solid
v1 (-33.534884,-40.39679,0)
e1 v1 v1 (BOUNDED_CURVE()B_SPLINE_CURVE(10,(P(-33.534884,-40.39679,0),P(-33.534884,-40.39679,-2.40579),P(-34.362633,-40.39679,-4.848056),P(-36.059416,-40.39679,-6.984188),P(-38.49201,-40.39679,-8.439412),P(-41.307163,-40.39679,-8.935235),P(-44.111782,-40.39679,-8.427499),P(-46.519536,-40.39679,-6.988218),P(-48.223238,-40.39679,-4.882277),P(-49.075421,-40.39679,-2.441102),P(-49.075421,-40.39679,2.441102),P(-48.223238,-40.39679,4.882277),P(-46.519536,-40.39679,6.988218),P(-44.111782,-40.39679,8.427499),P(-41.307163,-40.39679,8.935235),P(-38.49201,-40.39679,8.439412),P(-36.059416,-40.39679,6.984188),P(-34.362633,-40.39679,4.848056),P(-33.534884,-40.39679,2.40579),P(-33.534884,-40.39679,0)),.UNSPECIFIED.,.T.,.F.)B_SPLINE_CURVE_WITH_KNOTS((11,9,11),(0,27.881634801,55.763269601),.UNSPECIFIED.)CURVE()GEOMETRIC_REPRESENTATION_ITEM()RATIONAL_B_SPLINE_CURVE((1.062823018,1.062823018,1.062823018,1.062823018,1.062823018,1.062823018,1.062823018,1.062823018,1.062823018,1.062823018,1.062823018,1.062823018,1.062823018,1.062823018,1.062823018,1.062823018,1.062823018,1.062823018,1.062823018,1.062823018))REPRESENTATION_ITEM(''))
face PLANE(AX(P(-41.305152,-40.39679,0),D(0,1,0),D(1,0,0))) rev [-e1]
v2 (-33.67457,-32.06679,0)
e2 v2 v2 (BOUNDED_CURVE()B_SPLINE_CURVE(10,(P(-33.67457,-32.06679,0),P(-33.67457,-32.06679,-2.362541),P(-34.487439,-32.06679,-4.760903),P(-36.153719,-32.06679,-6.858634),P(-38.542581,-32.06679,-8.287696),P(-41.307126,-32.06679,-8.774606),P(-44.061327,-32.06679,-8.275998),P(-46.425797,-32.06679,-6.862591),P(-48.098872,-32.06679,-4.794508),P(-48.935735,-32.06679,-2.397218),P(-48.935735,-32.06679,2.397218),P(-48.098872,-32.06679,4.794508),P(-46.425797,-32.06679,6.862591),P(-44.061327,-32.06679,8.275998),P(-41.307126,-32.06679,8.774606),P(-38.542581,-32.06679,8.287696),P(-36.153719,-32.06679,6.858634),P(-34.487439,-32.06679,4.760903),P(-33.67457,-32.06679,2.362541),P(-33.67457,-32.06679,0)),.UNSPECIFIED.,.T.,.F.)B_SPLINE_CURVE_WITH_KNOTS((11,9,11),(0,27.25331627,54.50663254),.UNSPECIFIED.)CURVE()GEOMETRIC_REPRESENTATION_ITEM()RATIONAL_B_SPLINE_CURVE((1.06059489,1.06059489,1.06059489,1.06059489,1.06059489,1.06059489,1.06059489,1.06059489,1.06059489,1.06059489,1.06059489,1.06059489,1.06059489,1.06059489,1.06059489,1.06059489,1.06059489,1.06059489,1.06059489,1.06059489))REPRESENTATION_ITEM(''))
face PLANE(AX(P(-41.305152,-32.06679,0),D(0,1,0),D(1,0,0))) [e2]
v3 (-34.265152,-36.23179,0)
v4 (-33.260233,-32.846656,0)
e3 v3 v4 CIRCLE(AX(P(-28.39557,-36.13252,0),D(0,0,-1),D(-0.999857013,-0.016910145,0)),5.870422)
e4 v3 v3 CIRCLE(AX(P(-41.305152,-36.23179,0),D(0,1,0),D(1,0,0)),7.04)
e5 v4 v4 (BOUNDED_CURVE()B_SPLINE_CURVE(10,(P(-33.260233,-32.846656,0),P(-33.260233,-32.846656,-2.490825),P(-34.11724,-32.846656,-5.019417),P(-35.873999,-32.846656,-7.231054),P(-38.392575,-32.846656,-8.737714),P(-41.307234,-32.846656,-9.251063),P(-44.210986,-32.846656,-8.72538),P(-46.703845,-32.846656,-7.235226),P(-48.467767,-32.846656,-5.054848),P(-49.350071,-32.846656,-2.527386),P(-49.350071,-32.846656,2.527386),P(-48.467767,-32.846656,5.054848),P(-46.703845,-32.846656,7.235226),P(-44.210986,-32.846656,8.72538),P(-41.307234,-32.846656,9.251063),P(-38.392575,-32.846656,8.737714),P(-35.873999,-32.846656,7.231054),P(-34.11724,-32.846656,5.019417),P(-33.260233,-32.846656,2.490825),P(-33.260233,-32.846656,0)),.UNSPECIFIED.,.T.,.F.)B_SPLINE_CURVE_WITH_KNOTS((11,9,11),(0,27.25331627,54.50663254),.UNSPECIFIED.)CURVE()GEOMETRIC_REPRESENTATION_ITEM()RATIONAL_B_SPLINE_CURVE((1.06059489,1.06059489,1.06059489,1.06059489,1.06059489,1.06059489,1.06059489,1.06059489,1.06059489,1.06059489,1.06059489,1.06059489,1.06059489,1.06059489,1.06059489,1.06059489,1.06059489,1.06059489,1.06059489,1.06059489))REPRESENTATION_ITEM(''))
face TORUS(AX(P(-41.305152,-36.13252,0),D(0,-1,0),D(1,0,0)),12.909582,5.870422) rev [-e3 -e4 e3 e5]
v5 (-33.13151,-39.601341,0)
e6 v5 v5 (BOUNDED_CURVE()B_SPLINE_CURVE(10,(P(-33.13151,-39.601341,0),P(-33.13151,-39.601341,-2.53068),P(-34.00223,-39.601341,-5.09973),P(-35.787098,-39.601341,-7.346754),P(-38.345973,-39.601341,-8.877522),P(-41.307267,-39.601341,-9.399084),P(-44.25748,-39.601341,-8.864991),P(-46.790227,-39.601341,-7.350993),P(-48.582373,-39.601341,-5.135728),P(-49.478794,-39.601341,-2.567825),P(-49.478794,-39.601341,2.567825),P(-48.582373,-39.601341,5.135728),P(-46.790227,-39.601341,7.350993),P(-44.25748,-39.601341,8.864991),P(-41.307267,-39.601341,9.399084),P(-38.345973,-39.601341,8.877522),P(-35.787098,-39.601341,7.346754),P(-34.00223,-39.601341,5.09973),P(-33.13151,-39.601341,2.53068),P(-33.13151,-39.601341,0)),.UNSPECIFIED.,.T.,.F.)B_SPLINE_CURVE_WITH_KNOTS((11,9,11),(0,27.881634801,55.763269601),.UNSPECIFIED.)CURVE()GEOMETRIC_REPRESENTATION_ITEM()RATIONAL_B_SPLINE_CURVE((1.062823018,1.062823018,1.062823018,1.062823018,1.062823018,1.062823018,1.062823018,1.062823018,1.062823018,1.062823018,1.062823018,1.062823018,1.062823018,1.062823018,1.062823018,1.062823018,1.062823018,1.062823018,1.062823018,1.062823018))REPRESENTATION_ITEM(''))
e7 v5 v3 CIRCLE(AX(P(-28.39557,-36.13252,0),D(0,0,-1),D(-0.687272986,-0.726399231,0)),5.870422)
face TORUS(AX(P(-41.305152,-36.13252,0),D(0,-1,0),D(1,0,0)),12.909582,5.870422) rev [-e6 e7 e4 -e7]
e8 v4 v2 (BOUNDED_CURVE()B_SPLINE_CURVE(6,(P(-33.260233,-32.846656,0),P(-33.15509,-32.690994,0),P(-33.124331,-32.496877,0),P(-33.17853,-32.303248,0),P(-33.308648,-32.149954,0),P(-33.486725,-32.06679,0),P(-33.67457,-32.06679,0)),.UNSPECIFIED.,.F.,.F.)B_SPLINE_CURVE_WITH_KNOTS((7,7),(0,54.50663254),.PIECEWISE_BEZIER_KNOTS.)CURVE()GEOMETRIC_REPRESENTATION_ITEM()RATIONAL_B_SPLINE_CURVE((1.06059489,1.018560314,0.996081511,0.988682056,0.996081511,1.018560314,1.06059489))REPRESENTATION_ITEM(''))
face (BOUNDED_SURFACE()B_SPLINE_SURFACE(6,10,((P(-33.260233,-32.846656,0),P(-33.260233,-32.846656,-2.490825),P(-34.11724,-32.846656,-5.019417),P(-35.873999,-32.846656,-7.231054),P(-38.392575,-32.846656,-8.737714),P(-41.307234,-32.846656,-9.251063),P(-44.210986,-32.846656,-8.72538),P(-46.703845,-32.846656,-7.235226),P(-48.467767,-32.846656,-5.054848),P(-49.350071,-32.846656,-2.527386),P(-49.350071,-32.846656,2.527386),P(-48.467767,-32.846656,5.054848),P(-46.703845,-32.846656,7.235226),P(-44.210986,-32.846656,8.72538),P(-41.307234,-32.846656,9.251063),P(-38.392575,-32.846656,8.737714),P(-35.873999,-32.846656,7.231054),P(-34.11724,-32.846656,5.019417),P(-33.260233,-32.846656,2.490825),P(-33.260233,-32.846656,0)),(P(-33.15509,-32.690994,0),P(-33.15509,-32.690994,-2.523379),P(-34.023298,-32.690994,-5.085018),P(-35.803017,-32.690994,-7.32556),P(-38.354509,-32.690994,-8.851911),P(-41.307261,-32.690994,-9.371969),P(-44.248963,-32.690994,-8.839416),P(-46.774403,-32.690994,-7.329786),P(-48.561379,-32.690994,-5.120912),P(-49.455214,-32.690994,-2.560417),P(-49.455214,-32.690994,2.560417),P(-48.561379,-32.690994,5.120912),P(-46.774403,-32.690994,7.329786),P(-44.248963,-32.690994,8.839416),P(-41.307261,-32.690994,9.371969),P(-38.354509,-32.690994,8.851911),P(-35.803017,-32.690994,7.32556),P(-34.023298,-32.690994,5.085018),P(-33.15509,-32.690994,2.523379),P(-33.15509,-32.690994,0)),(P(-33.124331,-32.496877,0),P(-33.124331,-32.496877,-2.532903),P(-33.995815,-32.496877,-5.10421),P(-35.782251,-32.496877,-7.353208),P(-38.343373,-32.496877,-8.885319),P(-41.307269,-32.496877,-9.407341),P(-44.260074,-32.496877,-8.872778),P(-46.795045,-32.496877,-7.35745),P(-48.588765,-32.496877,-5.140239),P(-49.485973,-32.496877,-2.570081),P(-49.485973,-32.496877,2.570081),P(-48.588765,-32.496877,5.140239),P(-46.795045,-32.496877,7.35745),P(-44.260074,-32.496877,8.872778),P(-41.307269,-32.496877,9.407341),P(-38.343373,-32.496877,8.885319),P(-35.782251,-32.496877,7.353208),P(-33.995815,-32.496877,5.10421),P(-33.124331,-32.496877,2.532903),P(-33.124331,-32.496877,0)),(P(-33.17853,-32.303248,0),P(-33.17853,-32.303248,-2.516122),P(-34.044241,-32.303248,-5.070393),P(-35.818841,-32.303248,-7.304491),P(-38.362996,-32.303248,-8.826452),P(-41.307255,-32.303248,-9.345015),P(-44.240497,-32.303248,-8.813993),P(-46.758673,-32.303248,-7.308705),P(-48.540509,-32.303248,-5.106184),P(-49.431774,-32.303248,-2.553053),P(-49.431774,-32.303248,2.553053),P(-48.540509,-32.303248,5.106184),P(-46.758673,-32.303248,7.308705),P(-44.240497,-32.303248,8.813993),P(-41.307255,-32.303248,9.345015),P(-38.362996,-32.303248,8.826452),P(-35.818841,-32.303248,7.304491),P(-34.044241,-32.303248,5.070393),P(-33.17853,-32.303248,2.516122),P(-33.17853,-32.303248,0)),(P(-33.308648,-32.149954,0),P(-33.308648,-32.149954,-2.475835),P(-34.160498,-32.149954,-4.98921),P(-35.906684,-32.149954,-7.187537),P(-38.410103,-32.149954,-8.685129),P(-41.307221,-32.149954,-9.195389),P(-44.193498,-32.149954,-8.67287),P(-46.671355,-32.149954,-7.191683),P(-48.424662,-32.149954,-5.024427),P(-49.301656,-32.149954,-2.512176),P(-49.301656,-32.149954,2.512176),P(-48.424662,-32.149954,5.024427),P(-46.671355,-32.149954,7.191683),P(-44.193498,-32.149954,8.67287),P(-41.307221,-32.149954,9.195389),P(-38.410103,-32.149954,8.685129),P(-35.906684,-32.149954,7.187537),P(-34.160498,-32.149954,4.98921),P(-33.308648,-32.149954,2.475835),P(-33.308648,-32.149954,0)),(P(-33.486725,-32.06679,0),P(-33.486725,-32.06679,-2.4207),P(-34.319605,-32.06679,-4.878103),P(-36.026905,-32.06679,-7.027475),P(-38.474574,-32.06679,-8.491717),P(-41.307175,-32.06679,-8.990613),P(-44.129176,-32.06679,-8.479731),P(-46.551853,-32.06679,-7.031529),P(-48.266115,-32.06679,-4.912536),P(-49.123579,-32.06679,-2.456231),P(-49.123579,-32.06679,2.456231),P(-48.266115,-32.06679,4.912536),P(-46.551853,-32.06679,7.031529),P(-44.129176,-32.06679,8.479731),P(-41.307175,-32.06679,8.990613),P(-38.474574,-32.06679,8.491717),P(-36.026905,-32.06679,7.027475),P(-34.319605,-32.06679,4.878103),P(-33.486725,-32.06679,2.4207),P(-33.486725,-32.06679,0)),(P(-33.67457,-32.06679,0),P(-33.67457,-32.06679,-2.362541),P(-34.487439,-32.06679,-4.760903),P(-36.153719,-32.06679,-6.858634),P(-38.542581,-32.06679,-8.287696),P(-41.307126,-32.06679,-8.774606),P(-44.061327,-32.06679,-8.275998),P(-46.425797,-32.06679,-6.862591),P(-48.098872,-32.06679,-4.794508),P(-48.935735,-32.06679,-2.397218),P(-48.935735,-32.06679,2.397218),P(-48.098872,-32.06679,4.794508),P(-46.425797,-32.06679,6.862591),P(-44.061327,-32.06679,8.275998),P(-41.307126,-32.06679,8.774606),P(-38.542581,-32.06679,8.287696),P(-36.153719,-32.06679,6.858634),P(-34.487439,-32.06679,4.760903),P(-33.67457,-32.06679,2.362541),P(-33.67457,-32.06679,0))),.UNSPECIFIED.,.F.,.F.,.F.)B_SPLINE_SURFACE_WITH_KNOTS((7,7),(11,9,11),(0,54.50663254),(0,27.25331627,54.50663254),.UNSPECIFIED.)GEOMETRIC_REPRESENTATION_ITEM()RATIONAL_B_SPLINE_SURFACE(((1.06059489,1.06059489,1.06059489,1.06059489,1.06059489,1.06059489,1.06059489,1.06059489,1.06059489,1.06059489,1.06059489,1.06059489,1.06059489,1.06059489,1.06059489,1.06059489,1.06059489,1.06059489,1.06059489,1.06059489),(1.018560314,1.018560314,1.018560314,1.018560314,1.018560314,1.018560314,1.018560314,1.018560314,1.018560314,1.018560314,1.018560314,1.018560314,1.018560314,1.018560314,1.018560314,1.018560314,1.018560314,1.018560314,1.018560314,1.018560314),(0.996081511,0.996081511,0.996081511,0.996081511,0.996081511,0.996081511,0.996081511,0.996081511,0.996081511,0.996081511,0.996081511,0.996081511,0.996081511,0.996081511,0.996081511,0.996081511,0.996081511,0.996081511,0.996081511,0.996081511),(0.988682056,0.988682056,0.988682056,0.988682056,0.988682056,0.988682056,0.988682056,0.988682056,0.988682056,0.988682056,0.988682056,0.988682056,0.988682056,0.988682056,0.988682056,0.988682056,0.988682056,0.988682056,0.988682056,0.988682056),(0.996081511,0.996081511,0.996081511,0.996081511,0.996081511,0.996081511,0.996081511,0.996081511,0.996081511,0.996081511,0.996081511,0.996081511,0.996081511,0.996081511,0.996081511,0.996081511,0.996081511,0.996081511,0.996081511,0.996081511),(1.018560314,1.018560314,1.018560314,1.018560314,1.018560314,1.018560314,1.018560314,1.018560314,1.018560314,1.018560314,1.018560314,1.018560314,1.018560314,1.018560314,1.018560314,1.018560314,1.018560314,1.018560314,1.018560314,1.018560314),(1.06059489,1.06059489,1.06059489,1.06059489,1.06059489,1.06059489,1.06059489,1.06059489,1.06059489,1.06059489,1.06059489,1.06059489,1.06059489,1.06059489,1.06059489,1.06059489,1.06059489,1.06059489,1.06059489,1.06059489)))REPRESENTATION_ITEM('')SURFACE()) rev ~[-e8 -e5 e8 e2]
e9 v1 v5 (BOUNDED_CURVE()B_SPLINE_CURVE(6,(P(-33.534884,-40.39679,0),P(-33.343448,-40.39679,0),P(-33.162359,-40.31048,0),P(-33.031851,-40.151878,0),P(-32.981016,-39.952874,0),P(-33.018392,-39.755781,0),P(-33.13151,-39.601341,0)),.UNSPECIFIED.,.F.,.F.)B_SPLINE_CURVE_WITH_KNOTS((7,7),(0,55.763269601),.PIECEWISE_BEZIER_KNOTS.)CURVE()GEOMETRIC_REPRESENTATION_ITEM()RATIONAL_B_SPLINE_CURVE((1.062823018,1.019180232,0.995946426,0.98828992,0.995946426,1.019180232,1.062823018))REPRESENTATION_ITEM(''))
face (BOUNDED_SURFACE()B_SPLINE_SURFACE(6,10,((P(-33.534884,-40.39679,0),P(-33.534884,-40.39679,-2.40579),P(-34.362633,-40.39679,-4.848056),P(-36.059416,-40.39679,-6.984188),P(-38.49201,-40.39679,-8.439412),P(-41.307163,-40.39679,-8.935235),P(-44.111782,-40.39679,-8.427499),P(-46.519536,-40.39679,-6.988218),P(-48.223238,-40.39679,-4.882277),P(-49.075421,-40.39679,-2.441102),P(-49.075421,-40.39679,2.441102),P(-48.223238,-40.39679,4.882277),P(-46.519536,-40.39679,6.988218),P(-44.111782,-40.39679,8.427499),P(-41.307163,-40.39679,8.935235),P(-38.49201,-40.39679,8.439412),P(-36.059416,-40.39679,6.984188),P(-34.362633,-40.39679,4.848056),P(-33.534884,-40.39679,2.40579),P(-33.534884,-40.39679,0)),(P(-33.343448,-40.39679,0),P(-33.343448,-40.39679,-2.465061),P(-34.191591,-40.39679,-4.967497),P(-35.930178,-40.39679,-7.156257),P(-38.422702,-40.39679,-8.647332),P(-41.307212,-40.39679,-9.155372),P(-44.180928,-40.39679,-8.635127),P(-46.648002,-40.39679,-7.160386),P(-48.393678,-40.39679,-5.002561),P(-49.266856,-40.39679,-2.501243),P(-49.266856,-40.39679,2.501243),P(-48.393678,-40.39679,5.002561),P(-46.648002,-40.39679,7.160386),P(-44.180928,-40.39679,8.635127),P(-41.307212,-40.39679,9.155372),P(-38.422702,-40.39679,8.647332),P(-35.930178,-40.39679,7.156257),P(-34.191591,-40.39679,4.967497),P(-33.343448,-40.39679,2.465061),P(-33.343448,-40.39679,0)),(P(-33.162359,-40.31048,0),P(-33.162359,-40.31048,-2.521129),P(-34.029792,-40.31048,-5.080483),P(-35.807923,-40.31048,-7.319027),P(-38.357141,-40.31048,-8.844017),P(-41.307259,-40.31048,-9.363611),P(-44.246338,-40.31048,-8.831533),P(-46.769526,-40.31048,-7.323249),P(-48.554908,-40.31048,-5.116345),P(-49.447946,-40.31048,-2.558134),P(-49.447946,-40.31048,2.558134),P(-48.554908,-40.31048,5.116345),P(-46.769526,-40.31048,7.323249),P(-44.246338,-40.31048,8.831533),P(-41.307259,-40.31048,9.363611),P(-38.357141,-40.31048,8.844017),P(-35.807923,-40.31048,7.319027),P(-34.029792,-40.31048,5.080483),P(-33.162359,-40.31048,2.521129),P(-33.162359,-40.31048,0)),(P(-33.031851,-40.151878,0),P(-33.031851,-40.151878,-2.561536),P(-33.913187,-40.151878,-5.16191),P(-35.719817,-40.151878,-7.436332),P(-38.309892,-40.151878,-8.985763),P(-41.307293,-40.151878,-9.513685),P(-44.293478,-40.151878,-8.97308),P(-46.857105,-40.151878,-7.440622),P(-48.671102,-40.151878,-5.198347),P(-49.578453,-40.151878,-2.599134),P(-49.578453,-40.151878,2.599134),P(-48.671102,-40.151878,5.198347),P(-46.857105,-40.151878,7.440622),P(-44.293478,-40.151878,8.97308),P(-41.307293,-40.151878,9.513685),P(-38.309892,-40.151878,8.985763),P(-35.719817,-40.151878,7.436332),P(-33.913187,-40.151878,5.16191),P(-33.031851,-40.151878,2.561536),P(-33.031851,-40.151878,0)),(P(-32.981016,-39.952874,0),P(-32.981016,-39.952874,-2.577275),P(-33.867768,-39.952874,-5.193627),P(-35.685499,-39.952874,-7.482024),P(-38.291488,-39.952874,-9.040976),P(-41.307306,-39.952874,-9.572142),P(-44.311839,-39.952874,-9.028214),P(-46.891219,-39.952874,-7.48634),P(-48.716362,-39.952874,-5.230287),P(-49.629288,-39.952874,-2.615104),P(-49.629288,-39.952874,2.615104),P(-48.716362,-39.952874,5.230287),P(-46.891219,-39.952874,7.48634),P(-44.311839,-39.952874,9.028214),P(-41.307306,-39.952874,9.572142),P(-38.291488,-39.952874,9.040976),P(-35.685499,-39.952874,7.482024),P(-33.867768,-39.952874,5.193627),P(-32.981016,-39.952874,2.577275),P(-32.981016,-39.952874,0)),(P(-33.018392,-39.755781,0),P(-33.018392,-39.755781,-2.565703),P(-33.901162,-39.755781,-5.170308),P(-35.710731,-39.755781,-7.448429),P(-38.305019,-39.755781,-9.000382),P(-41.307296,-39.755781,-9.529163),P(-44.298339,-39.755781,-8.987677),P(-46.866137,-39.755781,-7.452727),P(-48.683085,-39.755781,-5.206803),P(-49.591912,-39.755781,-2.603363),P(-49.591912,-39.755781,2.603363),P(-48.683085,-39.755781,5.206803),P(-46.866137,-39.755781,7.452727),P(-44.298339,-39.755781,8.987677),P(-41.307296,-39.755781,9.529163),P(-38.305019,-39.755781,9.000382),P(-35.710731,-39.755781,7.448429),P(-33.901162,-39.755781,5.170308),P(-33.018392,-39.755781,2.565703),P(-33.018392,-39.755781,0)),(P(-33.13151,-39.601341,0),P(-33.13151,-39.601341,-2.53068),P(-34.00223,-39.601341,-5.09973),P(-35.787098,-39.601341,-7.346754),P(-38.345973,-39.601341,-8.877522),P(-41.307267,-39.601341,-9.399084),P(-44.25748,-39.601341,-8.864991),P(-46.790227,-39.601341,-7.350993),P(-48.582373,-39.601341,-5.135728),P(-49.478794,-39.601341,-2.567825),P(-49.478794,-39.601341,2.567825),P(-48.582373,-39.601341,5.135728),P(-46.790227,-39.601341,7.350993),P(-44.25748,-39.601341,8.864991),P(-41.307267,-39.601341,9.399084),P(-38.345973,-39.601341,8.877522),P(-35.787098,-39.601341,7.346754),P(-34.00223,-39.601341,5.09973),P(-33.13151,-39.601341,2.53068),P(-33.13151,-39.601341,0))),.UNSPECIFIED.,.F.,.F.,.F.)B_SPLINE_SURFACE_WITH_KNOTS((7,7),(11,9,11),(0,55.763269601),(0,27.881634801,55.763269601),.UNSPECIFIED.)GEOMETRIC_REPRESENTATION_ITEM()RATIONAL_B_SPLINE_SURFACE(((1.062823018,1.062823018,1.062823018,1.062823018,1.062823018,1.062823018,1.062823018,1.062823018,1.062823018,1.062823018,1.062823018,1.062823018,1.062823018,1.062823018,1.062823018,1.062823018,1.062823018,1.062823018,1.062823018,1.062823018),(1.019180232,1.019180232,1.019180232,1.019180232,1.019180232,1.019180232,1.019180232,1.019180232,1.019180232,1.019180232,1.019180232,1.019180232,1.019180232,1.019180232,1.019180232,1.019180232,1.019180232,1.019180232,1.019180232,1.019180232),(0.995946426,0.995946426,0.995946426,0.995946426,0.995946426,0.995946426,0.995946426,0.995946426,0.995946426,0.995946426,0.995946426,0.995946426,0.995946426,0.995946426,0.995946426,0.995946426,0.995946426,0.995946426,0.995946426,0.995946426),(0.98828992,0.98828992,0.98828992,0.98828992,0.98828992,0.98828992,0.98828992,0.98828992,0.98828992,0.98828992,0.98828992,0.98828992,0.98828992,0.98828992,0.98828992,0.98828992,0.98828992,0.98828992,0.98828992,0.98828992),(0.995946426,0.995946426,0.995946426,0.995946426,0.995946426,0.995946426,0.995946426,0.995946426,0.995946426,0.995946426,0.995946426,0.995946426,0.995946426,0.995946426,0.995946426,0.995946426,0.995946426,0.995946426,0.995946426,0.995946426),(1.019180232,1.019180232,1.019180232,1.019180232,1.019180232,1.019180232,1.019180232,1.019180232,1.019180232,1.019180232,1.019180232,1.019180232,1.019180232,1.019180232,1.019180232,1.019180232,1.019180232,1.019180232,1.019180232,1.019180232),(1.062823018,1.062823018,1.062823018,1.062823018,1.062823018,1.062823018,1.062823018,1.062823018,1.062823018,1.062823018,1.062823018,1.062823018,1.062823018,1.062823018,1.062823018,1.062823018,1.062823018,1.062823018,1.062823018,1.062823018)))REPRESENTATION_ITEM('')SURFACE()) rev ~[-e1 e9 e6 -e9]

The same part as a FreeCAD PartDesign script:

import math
import FreeCAD as App
import Part
import Sketcher
from FreeCAD import Vector
Q = App.Units.Quantity


def edges_at(feature, points):
    """Names of the edges that pass closest to the given points."""
    edges = feature.Shape.Edges
    near = lambda p: min(range(len(edges)), key=lambda i: edges[i].distToShape(Part.Vertex(*p))[0])
    return sorted({f"Edge{near(p) + 1}" for p in points})

doc = App.newDocument("Part")
body = doc.addObject("PartDesign::Body", "Body")

# Sketch on XY plane
sketch1 = doc.addObject("Sketcher::SketchObject", "Sketch")
body.addObject(sketch1)
sketch1.AttachmentSupport = (doc.XY_Plane, [""])
sketch1.MapMode = "FlatFace"
sketch1.addGeometry(Part.LineSegment(Vector(-41.3, -40.4, 0), Vector(-32.4, -40.4, 0)), False)
sketch1.addGeometry(Part.ArcOfCircle(Part.Circle(Vector(-28.4, -36.1, 0), Vector(0, 0, 1), 5.9), math.radians(-179), math.radians(-133)), False)
sketch1.addGeometry(Part.ArcOfCircle(Part.Circle(Vector(-28.4, -36.1, 0), Vector(0, 0, 1), 5.9), math.radians(136), math.radians(181)), False)
sketch1.addGeometry(Part.LineSegment(Vector(-32.6, -32.1, 0), Vector(-41.3, -32.1, 0)), False)
sketch1.addGeometry(Part.LineSegment(Vector(-41.3, -32.1, 0), Vector(-41.3, -40.4, 0)), False)
sketch1.addGeometry(Part.LineSegment(Vector(-41.3, -40.4, 0), Vector(-41.3, -32.1, 0)), True)  # axis
sketch1.addConstraint(Sketcher.Constraint("Coincident", 0, 2, 1, 2))
sketch1.addConstraint(Sketcher.Constraint("Tangent", 1, 1, 2, 2))
sketch1.addConstraint(Sketcher.Constraint("Coincident", 2, 1, 3, 1))
sketch1.addConstraint(Sketcher.Constraint("Coincident", 3, 2, 4, 1))
sketch1.addConstraint(Sketcher.Constraint("Coincident", 4, 2, 0, 1))
sketch1.addConstraint(Sketcher.Constraint("Horizontal", 0))
sketch1.addConstraint(Sketcher.Constraint("Horizontal", 3))
sketch1.addConstraint(Sketcher.Constraint("Vertical", 4))
sketch1.addConstraint(Sketcher.Constraint("Vertical", 5))
sketch1.addConstraint(Sketcher.Constraint("Coincident", 5, 1, 4, 2))
sketch1.addConstraint(Sketcher.Constraint("Equal", 1, 2))
sketch1.addConstraint(Sketcher.Constraint("Horizontal", 2, 1, 5, 2))
sketch1.addConstraint(Sketcher.Constraint("DistanceY", 4, 2, 4, 1, Q("8.33 mm")))
sketch1.addConstraint(Sketcher.Constraint("DistanceX", 2, 1, 0, 2, Q("0.2 mm")))
sketch1.addConstraint(Sketcher.Constraint("DistanceX", 0, 1, 0, 2, Q("8.875 mm")))
sketch1.addConstraint(Sketcher.Constraint("Radius", 1, Q("5.870422 mm")))
sketch1.addConstraint(Sketcher.Constraint("DistanceX", 3, 2, 1, 1, Q("7.04 mm")))
sketch1.addConstraint(Sketcher.Constraint("DistanceX", 1, 3, -1, 1, Q("28.39557 mm")))
sketch1.addConstraint(Sketcher.Constraint("DistanceY", 1, 3, -1, 1, Q("36.13252 mm")))
revolution = doc.addObject("PartDesign::Revolution", "Revolution")
body.addObject(revolution)
revolution.Profile = sketch1
revolution.ReferenceAxis = (sketch1, ["Axis0"])
revolution.Angle = 360
doc.recompute()

fillet = doc.addObject("PartDesign::Fillet", "Fillet")
body.addObject(fillet)
fillet.Base = (revolution, edges_at(revolution, [(-50.18, -40.397, 0), (-49.98, -32.067, 0)]))
fillet.Radius = 0.5

doc.recompute()
